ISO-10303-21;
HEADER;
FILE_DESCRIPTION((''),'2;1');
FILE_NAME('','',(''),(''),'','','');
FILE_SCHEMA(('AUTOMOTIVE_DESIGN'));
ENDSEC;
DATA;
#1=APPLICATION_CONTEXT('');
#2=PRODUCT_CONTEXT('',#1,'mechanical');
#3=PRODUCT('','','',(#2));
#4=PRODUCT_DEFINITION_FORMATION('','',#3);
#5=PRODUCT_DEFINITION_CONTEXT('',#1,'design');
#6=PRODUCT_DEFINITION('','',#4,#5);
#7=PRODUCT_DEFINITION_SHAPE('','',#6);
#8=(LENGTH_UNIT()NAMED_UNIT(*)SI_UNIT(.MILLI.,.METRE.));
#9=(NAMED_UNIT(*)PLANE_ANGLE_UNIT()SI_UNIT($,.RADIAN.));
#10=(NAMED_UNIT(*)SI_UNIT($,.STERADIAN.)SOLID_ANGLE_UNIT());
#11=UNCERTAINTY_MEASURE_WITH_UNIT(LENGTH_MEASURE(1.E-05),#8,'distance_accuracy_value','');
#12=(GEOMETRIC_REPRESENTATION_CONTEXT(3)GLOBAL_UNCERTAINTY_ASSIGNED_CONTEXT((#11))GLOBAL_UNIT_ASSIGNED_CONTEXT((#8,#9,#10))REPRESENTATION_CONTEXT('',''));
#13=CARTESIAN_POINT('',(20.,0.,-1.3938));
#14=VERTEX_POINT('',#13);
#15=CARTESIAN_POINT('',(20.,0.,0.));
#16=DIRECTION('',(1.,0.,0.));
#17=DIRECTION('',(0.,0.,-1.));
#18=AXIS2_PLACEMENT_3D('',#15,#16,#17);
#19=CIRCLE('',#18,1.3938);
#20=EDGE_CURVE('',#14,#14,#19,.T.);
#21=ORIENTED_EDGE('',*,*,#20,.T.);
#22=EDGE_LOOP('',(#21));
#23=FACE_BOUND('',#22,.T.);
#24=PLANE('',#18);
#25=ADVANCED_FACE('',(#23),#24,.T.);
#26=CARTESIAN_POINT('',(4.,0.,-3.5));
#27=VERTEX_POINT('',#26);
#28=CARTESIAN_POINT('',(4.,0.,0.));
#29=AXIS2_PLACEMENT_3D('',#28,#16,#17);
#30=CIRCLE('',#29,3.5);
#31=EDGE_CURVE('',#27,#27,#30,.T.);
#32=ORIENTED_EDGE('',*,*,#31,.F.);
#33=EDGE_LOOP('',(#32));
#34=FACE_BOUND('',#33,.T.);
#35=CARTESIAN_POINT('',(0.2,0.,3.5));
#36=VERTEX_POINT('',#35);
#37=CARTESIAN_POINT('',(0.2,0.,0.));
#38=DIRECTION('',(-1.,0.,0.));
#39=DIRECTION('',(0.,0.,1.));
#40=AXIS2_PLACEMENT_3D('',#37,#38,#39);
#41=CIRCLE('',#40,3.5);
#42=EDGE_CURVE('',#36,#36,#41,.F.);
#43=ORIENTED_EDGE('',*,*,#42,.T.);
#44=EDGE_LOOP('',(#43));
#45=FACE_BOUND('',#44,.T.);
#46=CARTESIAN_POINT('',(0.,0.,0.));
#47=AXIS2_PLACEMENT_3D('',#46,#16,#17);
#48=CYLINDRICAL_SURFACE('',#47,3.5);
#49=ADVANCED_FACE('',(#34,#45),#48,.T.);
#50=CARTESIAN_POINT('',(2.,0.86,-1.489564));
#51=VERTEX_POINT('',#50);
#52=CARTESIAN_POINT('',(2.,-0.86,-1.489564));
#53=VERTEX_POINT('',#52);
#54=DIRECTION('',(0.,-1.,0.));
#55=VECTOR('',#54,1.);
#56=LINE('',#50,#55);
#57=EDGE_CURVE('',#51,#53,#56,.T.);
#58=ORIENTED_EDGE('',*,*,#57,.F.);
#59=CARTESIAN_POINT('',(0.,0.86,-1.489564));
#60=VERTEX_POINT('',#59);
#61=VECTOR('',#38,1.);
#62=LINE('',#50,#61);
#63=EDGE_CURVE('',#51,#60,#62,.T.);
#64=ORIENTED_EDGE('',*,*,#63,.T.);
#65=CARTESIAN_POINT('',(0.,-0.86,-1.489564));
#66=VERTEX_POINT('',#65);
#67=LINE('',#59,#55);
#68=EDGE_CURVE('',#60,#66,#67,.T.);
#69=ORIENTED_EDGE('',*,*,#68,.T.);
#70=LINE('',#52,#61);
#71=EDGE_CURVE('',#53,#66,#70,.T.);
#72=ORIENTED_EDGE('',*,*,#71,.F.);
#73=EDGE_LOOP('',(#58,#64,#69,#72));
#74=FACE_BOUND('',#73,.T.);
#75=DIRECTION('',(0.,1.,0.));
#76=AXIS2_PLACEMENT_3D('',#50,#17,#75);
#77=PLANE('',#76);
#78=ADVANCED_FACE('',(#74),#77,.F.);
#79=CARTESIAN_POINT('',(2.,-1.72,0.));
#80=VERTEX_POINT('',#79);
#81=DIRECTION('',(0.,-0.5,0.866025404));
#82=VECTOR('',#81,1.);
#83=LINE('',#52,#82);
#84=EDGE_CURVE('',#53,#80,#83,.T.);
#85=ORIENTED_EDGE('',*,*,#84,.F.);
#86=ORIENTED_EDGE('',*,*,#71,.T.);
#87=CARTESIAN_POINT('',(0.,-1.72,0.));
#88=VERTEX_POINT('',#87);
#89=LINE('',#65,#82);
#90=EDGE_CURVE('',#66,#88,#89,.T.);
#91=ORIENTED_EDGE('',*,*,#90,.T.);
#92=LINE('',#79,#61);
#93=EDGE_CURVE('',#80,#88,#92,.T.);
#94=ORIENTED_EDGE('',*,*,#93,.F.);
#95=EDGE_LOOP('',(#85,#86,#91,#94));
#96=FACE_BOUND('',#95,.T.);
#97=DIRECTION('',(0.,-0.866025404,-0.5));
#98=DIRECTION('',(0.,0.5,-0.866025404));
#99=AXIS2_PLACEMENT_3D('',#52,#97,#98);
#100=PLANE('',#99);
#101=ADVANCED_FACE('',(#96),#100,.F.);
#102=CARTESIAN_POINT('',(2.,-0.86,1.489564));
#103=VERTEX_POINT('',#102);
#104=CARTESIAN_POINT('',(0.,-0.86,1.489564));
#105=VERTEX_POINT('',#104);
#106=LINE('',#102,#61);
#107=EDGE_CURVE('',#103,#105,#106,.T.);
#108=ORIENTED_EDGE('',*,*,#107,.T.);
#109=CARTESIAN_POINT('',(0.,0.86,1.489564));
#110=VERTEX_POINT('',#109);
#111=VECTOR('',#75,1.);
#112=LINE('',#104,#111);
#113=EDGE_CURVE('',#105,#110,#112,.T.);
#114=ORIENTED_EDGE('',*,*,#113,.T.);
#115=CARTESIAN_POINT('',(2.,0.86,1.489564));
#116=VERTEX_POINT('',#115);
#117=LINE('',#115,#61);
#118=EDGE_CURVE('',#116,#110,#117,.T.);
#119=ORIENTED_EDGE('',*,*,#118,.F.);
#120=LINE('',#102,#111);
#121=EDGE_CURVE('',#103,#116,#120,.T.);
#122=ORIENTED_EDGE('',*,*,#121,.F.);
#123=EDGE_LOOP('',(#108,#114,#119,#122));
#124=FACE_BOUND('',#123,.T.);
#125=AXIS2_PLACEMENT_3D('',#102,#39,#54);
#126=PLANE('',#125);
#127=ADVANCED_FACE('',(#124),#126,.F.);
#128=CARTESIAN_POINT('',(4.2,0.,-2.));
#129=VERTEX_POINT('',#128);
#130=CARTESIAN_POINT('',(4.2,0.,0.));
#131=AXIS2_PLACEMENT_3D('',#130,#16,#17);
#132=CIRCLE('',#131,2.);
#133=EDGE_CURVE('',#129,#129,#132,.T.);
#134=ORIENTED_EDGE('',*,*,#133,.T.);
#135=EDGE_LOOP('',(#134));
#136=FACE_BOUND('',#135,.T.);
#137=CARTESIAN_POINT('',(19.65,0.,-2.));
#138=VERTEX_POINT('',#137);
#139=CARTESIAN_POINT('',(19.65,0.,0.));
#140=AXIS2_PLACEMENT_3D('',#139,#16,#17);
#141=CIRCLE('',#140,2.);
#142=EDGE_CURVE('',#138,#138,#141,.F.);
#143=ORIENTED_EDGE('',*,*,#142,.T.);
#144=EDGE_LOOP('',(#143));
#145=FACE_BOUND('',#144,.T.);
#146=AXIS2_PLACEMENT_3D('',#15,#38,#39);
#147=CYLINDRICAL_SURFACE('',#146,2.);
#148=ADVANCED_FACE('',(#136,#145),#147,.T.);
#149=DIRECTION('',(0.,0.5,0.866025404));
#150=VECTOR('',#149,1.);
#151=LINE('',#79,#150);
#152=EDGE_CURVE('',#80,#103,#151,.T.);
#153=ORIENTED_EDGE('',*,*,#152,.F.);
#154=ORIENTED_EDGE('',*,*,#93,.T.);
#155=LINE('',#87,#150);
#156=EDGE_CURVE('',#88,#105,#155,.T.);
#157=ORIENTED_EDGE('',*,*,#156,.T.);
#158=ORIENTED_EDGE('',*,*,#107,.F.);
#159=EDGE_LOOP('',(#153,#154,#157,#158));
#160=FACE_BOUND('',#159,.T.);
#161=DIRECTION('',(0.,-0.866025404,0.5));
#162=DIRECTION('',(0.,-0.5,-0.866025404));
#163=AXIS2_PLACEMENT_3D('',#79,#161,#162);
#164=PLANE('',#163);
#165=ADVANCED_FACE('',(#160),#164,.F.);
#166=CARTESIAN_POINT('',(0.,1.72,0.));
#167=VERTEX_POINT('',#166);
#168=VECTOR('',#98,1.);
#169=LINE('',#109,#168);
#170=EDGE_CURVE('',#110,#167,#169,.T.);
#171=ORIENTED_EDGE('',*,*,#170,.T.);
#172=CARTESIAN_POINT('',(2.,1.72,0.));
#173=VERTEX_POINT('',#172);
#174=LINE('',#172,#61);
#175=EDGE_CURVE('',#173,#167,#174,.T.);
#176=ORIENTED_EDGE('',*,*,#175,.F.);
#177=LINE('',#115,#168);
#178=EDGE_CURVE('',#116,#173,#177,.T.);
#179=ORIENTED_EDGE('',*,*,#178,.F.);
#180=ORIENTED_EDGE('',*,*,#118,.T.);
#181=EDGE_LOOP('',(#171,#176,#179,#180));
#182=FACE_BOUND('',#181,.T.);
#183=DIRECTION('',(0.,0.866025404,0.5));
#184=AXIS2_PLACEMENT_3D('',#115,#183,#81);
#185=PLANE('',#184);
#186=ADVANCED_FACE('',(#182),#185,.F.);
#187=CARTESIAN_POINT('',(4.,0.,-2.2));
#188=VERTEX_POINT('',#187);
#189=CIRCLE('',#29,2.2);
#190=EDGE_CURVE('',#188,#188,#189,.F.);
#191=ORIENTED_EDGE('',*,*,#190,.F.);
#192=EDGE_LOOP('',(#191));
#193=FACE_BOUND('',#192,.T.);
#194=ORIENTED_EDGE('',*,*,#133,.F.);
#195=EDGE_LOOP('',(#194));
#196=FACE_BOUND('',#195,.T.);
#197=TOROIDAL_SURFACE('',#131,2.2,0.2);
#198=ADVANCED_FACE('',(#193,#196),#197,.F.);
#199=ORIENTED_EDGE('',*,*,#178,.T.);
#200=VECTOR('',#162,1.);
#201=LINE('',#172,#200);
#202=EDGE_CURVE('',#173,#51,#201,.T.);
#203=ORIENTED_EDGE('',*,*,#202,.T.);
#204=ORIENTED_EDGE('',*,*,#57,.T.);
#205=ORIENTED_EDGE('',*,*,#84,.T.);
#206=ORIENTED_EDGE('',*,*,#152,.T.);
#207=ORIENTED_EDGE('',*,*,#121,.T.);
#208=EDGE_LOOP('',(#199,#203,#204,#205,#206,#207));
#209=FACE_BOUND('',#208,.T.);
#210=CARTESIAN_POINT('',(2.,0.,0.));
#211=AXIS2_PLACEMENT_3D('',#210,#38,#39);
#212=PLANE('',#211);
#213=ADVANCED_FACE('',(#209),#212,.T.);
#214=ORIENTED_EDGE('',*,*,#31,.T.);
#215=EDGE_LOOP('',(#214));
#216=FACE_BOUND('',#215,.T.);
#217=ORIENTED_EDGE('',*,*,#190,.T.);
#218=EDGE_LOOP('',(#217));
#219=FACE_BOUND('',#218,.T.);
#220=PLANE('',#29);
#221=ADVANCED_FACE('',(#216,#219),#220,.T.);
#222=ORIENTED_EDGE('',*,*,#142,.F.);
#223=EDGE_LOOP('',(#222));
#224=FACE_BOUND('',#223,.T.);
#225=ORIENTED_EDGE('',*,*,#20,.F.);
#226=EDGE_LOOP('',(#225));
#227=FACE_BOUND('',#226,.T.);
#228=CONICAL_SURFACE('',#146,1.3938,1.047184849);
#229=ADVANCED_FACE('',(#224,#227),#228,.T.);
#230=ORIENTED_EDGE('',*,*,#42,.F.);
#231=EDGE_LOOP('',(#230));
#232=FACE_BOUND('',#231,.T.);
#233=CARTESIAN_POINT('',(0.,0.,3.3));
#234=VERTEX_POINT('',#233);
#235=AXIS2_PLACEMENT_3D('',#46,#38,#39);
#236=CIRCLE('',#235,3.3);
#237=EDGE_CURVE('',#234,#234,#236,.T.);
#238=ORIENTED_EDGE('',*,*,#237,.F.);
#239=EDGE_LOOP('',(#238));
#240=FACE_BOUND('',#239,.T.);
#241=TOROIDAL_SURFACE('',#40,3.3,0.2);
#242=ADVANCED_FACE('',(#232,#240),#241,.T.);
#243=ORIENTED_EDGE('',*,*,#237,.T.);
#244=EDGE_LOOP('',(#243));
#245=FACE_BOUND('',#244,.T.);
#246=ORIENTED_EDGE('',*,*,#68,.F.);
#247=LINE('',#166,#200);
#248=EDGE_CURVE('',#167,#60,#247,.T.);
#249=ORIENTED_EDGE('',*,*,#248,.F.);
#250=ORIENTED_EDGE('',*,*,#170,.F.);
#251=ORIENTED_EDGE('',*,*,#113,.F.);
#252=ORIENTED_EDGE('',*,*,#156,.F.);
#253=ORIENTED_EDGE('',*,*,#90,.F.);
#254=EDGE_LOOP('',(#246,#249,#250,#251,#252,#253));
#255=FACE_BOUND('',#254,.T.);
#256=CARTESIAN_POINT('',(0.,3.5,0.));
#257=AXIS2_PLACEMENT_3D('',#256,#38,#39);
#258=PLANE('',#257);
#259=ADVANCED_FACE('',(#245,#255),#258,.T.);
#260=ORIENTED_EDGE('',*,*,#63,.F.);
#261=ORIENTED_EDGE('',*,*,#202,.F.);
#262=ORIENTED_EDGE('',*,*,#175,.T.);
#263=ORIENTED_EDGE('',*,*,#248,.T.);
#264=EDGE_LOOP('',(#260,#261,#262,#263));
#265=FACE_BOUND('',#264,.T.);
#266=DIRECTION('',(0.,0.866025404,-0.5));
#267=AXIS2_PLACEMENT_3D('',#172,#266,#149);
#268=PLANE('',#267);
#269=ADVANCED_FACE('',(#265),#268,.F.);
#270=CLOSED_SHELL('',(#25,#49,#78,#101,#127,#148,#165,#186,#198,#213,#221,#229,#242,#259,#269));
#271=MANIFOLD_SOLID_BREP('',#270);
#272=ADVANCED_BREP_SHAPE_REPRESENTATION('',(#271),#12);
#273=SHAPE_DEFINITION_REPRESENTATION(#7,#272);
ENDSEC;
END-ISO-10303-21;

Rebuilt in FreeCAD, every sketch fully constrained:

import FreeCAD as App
import Part
import Sketcher
Q = App.Units.Quantity


def edges_at(feature, points):
    """Names of the edges that pass closest to the given points."""
    edges = feature.Shape.Edges
    near = lambda p: min(range(len(edges)), key=lambda i: edges[i].distToShape(Part.Vertex(*p))[0])
    return sorted({f"Edge{near(p) + 1}" for p in points})

doc = App.newDocument("Part")
params = doc.addObject("Spreadsheet::Sheet", "Params")
for row, (alias, value) in enumerate([
    ("sketch1_width", "4 mm"),
    ("sketch1_height", "3.5 mm"),
    ("revolution_angle", "360 deg"),
    ("sketch2_diameter", "4 mm"),
    ("pad1_length", "16 mm"),
    ("sketch3_width", "1.72 mm"),
    ("sketch3_length", "1.72 mm"),
    ("pocket1_length", "2 mm"),
    ("chamfer_size", "0.6062 mm"),
    ("chamfer_size2", "0.35 mm"),
    ("fillet_radius", "0.2 mm"),
], start=1):
    params.set(f"A{row}", alias)
    params.set(f"B{row}", "=" + value)
    params.setAlias(f"B{row}", alias)

body = doc.addObject("PartDesign::Body", "Body")

sketch1 = body.newObject("Sketcher::SketchObject", "Sketch")
sketch1.AttachmentSupport = (doc.getObject("XY_Plane"), [""])
sketch1.MapMode = "FlatFace"
sketch1.addGeometry([
    Part.LineSegment(App.Vector(0, 3.5, 0), App.Vector(0, 0, 0)),
    Part.LineSegment(App.Vector(0, 0, 0), App.Vector(4, 0, 0)),
    Part.LineSegment(App.Vector(4, 0, 0), App.Vector(4, 3.5, 0)),
    Part.LineSegment(App.Vector(4, 3.5, 0), App.Vector(0, 3.5, 0)),
], False)
sketch1.addConstraint([
    Sketcher.Constraint("Coincident", 0, 2, 1, 1),
    Sketcher.Constraint("Coincident", 1, 2, 2, 1),
    Sketcher.Constraint("Coincident", 2, 2, 3, 1),
    Sketcher.Constraint("Coincident", 3, 2, 0, 1),
    Sketcher.Constraint("Vertical", 0),
    Sketcher.Constraint("Horizontal", 1),
    Sketcher.Constraint("Vertical", 2),
    Sketcher.Constraint("Horizontal", 3),
    Sketcher.Constraint("Coincident", 0, 2, -1, 1),
    Sketcher.Constraint("DistanceX", 1, 1, 1, 2, 4.0),
    Sketcher.Constraint("DistanceY", 0, 2, 0, 1, 3.5),
])
sketch1.setExpression("Constraints[9]", "Params.sketch1_width")
sketch1.setExpression("Constraints[10]", "Params.sketch1_height")
revolution = body.newObject("PartDesign::Revolution", "Revolution")
revolution.Profile = sketch1
revolution.ReferenceAxis = (sketch1, ["H_Axis"])
revolution.setExpression("Angle", "Params.revolution_angle")

sketch2 = body.newObject("Sketcher::SketchObject", "Sketch001")
sketch2.AttachmentSupport = (doc.getObject("YZ_Plane"), [""])
sketch2.MapMode = "FlatFace"
sketch2.AttachmentOffset = App.Placement(App.Vector(0, 0, 4), App.Rotation())
sketch2.addGeometry(Part.Circle(App.Vector(0, 0, 0), App.Vector(0, 0, 1), 2), False)
sketch2.addConstraint([
    Sketcher.Constraint("Coincident", 0, 3, -1, 1),
    Sketcher.Constraint("Diameter", 0, 4.0),
])
sketch2.setExpression("Constraints[1]", "Params.sketch2_diameter")
pad1 = body.newObject("PartDesign::Pad", "Pad")
pad1.Profile = sketch2
pad1.setExpression("Length", "Params.pad1_length")

sketch3 = body.newObject("Sketcher::SketchObject", "Sketch002")
sketch3.AttachmentSupport = (doc.getObject("YZ_Plane"), [""])
sketch3.MapMode = "FlatFace"
sketch3.addGeometry([
    Part.LineSegment(App.Vector(1.7, 0, 0), App.Vector(0.9, -1.5, 0)),
    Part.LineSegment(App.Vector(0.9, -1.5, 0), App.Vector(-0.9, -1.5, 0)),
    Part.LineSegment(App.Vector(-0.9, -1.5, 0), App.Vector(-1.7, 0, 0)),
    Part.LineSegment(App.Vector(-1.7, 0, 0), App.Vector(-0.9, 1.5, 0)),
    Part.LineSegment(App.Vector(-0.9, 1.5, 0), App.Vector(0.9, 1.5, 0)),
    Part.LineSegment(App.Vector(0.9, 1.5, 0), App.Vector(1.7, 0, 0)),
], False)
sketch3.addConstraint([
    Sketcher.Constraint("Coincident", 0, 2, 1, 1),
    Sketcher.Constraint("Coincident", 1, 2, 2, 1),
    Sketcher.Constraint("Coincident", 2, 2, 3, 1),
    Sketcher.Constraint("Coincident", 3, 2, 4, 1),
    Sketcher.Constraint("Coincident", 4, 2, 5, 1),
    Sketcher.Constraint("Coincident", 5, 2, 0, 1),
    Sketcher.Constraint("Horizontal", 1),
    Sketcher.Constraint("Horizontal", 4),
    Sketcher.Constraint("Symmetric", 0, 2, 3, 2, -1, 1),
    Sketcher.Constraint("Symmetric", 2, 2, 5, 2, -1, 1),
    Sketcher.Constraint("PointOnObject", 2, 2, -1),
    Sketcher.Constraint("Parallel", 2, 5),
    Sketcher.Constraint("Vertical", 1, 2, 3, 2),
    Sketcher.Constraint("Angle", 0, Q("-120 deg")),
    Sketcher.Constraint("DistanceX", 1, 2, 1, 1, 1.72),
    Sketcher.Constraint("Distance", 0, 1.72),
])
sketch3.setExpression("Constraints[14]", "Params.sketch3_width")
sketch3.setExpression("Constraints[15]", "Params.sketch3_length")
pocket1 = body.newObject("PartDesign::Pocket", "Pocket")
pocket1.Profile = sketch3
pocket1.setExpression("Length", "Params.pocket1_length")
pocket1.Reversed = True
doc.recompute()

chamfer = body.newObject("PartDesign::Chamfer", "Chamfer")
chamfer.Base = (pocket1, edges_at(pocket1, [(20, 0, 2)]))
chamfer.ChamferType = "Two distances"
chamfer.setExpression("Size", "Params.chamfer_size")
chamfer.setExpression("Size2", "Params.chamfer_size2")
chamfer.FlipDirection = True
doc.recompute()

fillet = body.newObject("PartDesign::Fillet", "Fillet")
fillet.Base = (chamfer, edges_at(chamfer, [(0, -3.5, 0), (4, 0, 2)]))
fillet.setExpression("Radius", "Params.fillet_radius")

doc.recompute()
